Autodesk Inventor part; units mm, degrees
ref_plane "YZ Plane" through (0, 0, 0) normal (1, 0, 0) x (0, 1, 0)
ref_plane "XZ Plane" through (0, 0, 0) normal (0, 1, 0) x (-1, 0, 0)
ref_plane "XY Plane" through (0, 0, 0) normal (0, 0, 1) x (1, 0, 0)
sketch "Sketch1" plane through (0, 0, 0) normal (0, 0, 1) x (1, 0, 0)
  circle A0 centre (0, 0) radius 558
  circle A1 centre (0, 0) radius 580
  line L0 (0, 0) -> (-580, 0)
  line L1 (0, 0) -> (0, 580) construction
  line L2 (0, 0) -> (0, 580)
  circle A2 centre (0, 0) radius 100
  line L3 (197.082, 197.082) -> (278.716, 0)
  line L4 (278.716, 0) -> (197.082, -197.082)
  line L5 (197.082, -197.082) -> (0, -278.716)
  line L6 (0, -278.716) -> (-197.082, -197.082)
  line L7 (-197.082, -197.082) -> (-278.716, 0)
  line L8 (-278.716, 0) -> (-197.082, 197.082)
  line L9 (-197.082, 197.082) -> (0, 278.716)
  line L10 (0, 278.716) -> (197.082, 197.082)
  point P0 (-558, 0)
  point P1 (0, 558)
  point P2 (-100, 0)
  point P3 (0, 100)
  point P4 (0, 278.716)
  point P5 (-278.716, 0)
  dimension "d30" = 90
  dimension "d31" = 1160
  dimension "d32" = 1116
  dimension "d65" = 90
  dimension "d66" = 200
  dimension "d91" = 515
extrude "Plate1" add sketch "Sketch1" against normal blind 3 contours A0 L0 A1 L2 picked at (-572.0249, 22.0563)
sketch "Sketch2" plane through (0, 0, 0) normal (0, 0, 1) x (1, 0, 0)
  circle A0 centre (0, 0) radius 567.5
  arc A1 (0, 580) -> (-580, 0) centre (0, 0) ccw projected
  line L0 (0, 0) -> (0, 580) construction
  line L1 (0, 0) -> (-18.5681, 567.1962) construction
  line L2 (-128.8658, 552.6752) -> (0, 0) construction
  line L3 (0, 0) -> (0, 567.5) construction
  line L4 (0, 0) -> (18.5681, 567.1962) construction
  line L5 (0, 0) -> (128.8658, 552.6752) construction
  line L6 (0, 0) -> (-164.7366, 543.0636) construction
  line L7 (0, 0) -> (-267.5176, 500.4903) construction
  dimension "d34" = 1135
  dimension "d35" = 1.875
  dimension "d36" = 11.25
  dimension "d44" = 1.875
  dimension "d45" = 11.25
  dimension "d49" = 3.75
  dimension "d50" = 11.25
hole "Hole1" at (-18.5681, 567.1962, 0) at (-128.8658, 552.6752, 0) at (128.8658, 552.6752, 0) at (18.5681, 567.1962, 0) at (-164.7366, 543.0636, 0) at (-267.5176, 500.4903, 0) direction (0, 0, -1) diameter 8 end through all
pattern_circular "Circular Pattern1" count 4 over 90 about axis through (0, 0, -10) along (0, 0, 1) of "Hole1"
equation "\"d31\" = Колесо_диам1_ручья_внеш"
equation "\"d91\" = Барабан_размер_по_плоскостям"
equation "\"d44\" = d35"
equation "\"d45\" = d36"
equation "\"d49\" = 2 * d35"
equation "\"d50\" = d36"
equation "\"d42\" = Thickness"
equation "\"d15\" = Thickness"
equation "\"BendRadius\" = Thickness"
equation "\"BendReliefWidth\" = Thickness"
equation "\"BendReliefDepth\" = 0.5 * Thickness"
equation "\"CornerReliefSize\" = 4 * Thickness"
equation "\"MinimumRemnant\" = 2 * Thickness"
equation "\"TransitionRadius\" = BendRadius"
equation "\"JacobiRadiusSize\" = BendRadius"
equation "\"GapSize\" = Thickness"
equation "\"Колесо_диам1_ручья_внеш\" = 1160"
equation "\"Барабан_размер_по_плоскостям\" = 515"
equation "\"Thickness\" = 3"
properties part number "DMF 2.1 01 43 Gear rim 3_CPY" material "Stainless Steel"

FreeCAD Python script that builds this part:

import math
import FreeCAD as App
import Part
import Sketcher
from FreeCAD import Vector
Q = App.Units.Quantity

doc = App.newDocument("Part")
body = doc.addObject("PartDesign::Body", "Body")

# Sketch on XY plane
sketch1 = doc.addObject("Sketcher::SketchObject", "Sketch")
body.addObject(sketch1)
sketch1.AttachmentSupport = (doc.XY_Plane, [""])
sketch1.MapMode = "FlatFace"
sketch1.addGeometry(Part.ArcOfCircle(Part.Circle(Vector(0, 0, 0), Vector(0, 0, 1), 558), math.radians(90), math.radians(180)), False)
sketch1.addGeometry(Part.LineSegment(Vector(0, 558, 0), Vector(0, 580, 0)), False)
sketch1.addGeometry(Part.ArcOfCircle(Part.Circle(Vector(0, 0, 0), Vector(0, 0, 1), 580), math.radians(90), math.radians(180)), False)
sketch1.addGeometry(Part.LineSegment(Vector(-580, 0, 0), Vector(-558, 0, 0)), False)
sketch1.addConstraint(Sketcher.Constraint("Coincident", 0, 1, 1, 1))
sketch1.addConstraint(Sketcher.Constraint("Coincident", 1, 2, 2, 1))
sketch1.addConstraint(Sketcher.Constraint("Coincident", 2, 2, 3, 1))
sketch1.addConstraint(Sketcher.Constraint("Coincident", 3, 2, 0, 2))
sketch1.addConstraint(Sketcher.Constraint("Vertical", 1))
sketch1.addConstraint(Sketcher.Constraint("Horizontal", 3))
sketch1.addConstraint(Sketcher.Constraint("Coincident", 0, 3, -1, 1))
sketch1.addConstraint(Sketcher.Constraint("Coincident", 2, 3, -1, 1))
sketch1.addConstraint(Sketcher.Constraint("PointOnObject", 1, 2, -2))
sketch1.addConstraint(Sketcher.Constraint("PointOnObject", 3, 2, -1))
sketch1.addConstraint(Sketcher.Constraint("Radius", 0, Q("558 mm")))
sketch1.addConstraint(Sketcher.Constraint("Radius", 2, Q("580 mm")))
pad1 = doc.addObject("PartDesign::Pad", "Pad")
body.addObject(pad1)
pad1.Profile = sketch1
pad1.Length = 3
pad1.Reversed = True

# Sketch on XY plane
sketch2 = doc.addObject("Sketcher::SketchObject", "Sketch001")
body.addObject(sketch2)
sketch2.AttachmentSupport = (doc.XY_Plane, [""])
sketch2.MapMode = "FlatFace"
sketch2.addGeometry(Part.Circle(Vector(-18.5681, 567.1962, 0), Vector(0, 0, 1), 4), False)
sketch2.addGeometry(Part.Circle(Vector(-128.8658, 552.6752, 0), Vector(0, 0, 1), 4), False)
sketch2.addGeometry(Part.Circle(Vector(128.8658, 552.6752, 0), Vector(0, 0, 1), 4), False)
sketch2.addGeometry(Part.Circle(Vector(18.5681, 567.1962, 0), Vector(0, 0, 1), 4), False)
sketch2.addGeometry(Part.Circle(Vector(-164.7366, 543.0636, 0), Vector(0, 0, 1), 4), False)
sketch2.addGeometry(Part.Circle(Vector(-267.5176, 500.4903, 0), Vector(0, 0, 1), 4), False)
sketch2.addConstraint(Sketcher.Constraint("Equal", 0, 1))
sketch2.addConstraint(Sketcher.Constraint("Equal", 1, 2))
sketch2.addConstraint(Sketcher.Constraint("Equal", 2, 3))
sketch2.addConstraint(Sketcher.Constraint("Equal", 3, 4))
sketch2.addConstraint(Sketcher.Constraint("Equal", 4, 5))
sketch2.addConstraint(Sketcher.Constraint("Symmetric", 1, 3, 2, 3, -2))
sketch2.addConstraint(Sketcher.Constraint("Symmetric", 0, 3, 3, 3, -2))
sketch2.addConstraint(Sketcher.Constraint("Diameter", 0, Q("8 mm")))
sketch2.addConstraint(Sketcher.Constraint("DistanceX", 0, 3, -1, 1, Q("18.568 mm")))
sketch2.addConstraint(Sketcher.Constraint("DistanceY", 1, 3, 0, 3, Q("14.521 mm")))
sketch2.addConstraint(Sketcher.Constraint("DistanceX", 0, 3, 2, 3, Q("147.434 mm")))
sketch2.addConstraint(Sketcher.Constraint("DistanceX", 5, 3, 4, 3, Q("102.781 mm")))
sketch2.addConstraint(Sketcher.Constraint("DistanceY", 5, 3, 1, 3, Q("52.185 mm")))
sketch2.addConstraint(Sketcher.Constraint("DistanceY", -1, 1, 0, 3, Q("567.1962 mm")))
sketch2.addConstraint(Sketcher.Constraint("DistanceX", 4, 3, -1, 1, Q("164.7366 mm")))
sketch2.addConstraint(Sketcher.Constraint("DistanceY", -1, 1, 4, 3, Q("543.0636 mm")))
doc.recompute()
hole = doc.addObject("PartDesign::Hole", "Hole")
body.addObject(hole)
hole.Profile = sketch2
hole.ThreadType = "None"
hole.Diameter = 8
hole.DepthType = "ThroughAll"
doc.recompute()

polarpattern = doc.addObject("PartDesign::PolarPattern", "PolarPattern")
body.addObject(polarpattern)
polarpattern.Originals = [hole]
polarpattern.Axis = (doc.Z_Axis, [""])
polarpattern.Angle = 90
polarpattern.Occurrences = 4
body.Tip = polarpattern

doc.recompute()
